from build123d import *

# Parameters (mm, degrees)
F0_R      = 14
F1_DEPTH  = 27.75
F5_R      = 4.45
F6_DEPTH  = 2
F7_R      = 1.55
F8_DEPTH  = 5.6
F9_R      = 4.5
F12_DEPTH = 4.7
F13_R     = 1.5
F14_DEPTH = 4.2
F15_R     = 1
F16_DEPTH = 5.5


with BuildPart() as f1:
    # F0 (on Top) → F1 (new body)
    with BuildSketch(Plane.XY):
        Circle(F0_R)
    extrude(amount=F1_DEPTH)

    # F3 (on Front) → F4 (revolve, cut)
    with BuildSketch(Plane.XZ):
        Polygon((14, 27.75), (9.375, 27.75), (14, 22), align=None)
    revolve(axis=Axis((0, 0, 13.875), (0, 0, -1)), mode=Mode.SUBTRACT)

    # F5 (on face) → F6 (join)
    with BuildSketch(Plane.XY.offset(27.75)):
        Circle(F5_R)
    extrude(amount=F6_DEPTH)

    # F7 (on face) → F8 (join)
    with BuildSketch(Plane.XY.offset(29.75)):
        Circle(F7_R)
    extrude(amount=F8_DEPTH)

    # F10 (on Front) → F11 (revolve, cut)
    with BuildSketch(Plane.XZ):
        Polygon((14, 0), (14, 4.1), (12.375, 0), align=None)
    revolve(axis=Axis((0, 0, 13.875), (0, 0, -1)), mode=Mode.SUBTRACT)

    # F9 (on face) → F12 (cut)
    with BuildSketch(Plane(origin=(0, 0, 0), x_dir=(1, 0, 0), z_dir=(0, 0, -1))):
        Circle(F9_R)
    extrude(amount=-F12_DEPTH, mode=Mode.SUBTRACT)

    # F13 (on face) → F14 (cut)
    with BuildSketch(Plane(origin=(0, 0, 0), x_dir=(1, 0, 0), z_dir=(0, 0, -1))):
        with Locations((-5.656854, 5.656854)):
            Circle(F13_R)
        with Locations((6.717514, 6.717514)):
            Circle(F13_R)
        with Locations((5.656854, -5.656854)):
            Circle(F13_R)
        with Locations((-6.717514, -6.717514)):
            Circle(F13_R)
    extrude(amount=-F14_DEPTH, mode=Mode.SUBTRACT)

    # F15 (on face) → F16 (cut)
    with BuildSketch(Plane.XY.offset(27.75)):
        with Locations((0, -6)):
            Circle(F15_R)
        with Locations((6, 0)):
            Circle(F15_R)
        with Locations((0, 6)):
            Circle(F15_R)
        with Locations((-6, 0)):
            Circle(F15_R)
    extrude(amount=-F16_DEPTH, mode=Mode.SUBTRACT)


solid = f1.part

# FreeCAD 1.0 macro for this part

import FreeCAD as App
import Part
import Sketcher
from FreeCAD import Vector


def add_polygon(sketch, points):
    """Adds a closed chain of lines whose ends are joined by coincident constraints."""
    first, n = sketch.GeometryCount, len(points)
    for a, b in zip(points, points[1:] + points[:1]):
        sketch.addGeometry(Part.LineSegment(App.Vector(*a, 0), App.Vector(*b, 0)), False)
    for i in range(n):
        sketch.addConstraint(Sketcher.Constraint("Coincident", first + i, 2, first + (i + 1) % n, 1))

doc = App.newDocument("Part")
body = doc.addObject("PartDesign::Body", "Body")

# Sketch on XY plane
sketch1 = body.newObject("Sketcher::SketchObject", "Sketch")
sketch1.AttachmentSupport = (doc.getObject("XY_Plane"), [""])
sketch1.MapMode = "FlatFace"
sketch1.addGeometry(Part.Circle(Vector(0, 0, 0), Vector(0, 0, 1), 14), False)
sketch1.addConstraint(Sketcher.Constraint("Coincident", 0, 3, -1, 1))
sketch1.addConstraint(Sketcher.Constraint("Diameter", 0, 28.0))
pad1 = body.newObject("PartDesign::Pad", "Pad")
pad1.Profile = sketch1
pad1.Length = 27.75

# Sketch on XZ plane
sketch2 = body.newObject("Sketcher::SketchObject", "Sketch001")
sketch2.AttachmentSupport = (doc.getObject("XZ_Plane"), [""])
sketch2.MapMode = "FlatFace"
add_polygon(sketch2, [(14, 27.8), (9.4, 27.8), (14, 22)])  # lines 0-2
sketch2.addConstraint(Sketcher.Constraint("Horizontal", 0))
sketch2.addConstraint(Sketcher.Constraint("Vertical", 2))
sketch2.addConstraint(Sketcher.Constraint("DistanceX", -1, 1, 1, 2, 14.0))
sketch2.addConstraint(Sketcher.Constraint("DistanceY", -1, 1, 1, 2, 22.0))
sketch2.addConstraint(Sketcher.Constraint("DistanceY", 2, 1, 2, 2, 5.75))
sketch2.addConstraint(Sketcher.Constraint("DistanceX", 0, 2, 0, 1, 4.625))
groove = body.newObject("PartDesign::Groove", "Groove")
groove.Profile = sketch2
groove.ReferenceAxis = (sketch2, ["V_Axis"])
groove.Angle = 360

# Sketch on XY plane
sketch3 = body.newObject("Sketcher::SketchObject", "Sketch002")
sketch3.AttachmentSupport = (doc.getObject("XY_Plane"), [""])
sketch3.MapMode = "FlatFace"
sketch3.AttachmentOffset = App.Placement(Vector(0, 0, 27.75), App.Rotation())
sketch3.addGeometry(Part.Circle(Vector(0, 0, 0), Vector(0, 0, 1), 4.5), False)
sketch3.addConstraint(Sketcher.Constraint("Coincident", 0, 3, -1, 1))
sketch3.addConstraint(Sketcher.Constraint("Diameter", 0, 8.9))
pad2 = body.newObject("PartDesign::Pad", "Pad001")
pad2.Profile = sketch3
pad2.Length = 2

# Sketch on XY plane
sketch4 = body.newObject("Sketcher::SketchObject", "Sketch003")
sketch4.AttachmentSupport = (doc.getObject("XY_Plane"), [""])
sketch4.MapMode = "FlatFace"
sketch4.AttachmentOffset = App.Placement(Vector(0, 0, 29.75), App.Rotation())
sketch4.addGeometry(Part.Circle(Vector(0, 0, 0), Vector(0, 0, 1), 1.6), False)
sketch4.addConstraint(Sketcher.Constraint("Coincident", 0, 3, -1, 1))
sketch4.addConstraint(Sketcher.Constraint("Diameter", 0, 3.1))
pad3 = body.newObject("PartDesign::Pad", "Pad002")
pad3.Profile = sketch4
pad3.Length = 5.6

# Sketch on XZ plane
sketch5 = body.newObject("Sketcher::SketchObject", "Sketch004")
sketch5.AttachmentSupport = (doc.getObject("XZ_Plane"), [""])
sketch5.MapMode = "FlatFace"
add_polygon(sketch5, [(14, 0), (14, 4.1), (12.4, 0)])  # lines 0-2
sketch5.addConstraint(Sketcher.Constraint("Vertical", 0))
sketch5.addConstraint(Sketcher.Constraint("Horizontal", 2))
sketch5.addConstraint(Sketcher.Constraint("PointOnObject", 1, 2, -1))
sketch5.addConstraint(Sketcher.Constraint("DistanceY", 0, 1, 0, 2, 4.1))
sketch5.addConstraint(Sketcher.Constraint("DistanceX", -1, 1, 0, 2, 14.0))
sketch5.addConstraint(Sketcher.Constraint("DistanceX", 2, 1, 2, 2, 1.625))
groove2 = body.newObject("PartDesign::Groove", "Groove001")
groove2.Profile = sketch5
groove2.ReferenceAxis = (sketch5, ["V_Axis"])
groove2.Angle = 360

# Sketch on XY plane
sketch6 = body.newObject("Sketcher::SketchObject", "Sketch005")
sketch6.AttachmentSupport = (doc.getObject("XY_Plane"), [""])
sketch6.MapMode = "FlatFace"
sketch6.addGeometry(Part.Circle(Vector(0, 0, 0), Vector(0, 0, 1), 4.5), False)
sketch6.addConstraint(Sketcher.Constraint("Coincident", 0, 3, -1, 1))
sketch6.addConstraint(Sketcher.Constraint("Diameter", 0, 9.0))
pocket1 = body.newObject("PartDesign::Pocket", "Pocket")
pocket1.Profile = sketch6
pocket1.Length = 4.7
pocket1.Reversed = True

# Sketch on XY plane
sketch7 = body.newObject("Sketcher::SketchObject", "Sketch006")
sketch7.AttachmentSupport = (doc.getObject("XY_Plane"), [""])
sketch7.MapMode = "FlatFace"
sketch7.addGeometry(Part.Circle(Vector(-5.7, -5.7, 0), Vector(0, 0, 1), 1.5), False)
sketch7.addGeometry(Part.Circle(Vector(6.7, -6.7, 0), Vector(0, 0, 1), 1.5), False)
sketch7.addGeometry(Part.Circle(Vector(5.7, 5.7, 0), Vector(0, 0, 1), 1.5), False)
sketch7.addGeometry(Part.Circle(Vector(-6.7, 6.7, 0), Vector(0, 0, 1), 1.5), False)
sketch7.addConstraint(Sketcher.Constraint("Equal", 0, 1))
sketch7.addConstraint(Sketcher.Constraint("Equal", 1, 2))
sketch7.addConstraint(Sketcher.Constraint("Equal", 2, 3))
sketch7.addConstraint(Sketcher.Constraint("Symmetric", 0, 3, 2, 3, -1, 1))
sketch7.addConstraint(Sketcher.Constraint("Symmetric", 1, 3, 3, 3, -1, 1))
sketch7.addConstraint(Sketcher.Constraint("Diameter", 0, 3.0))
sketch7.addConstraint(Sketcher.Constraint("DistanceY", 1, 3, 0, 3, 1.06066))
sketch7.addConstraint(Sketcher.Constraint("DistanceX", 2, 3, 1, 3, 1.06066))
sketch7.addConstraint(Sketcher.Constraint("DistanceX", 3, 3, 1, 3, 13.435028))
sketch7.addConstraint(Sketcher.Constraint("DistanceY", 1, 3, 3, 3, 13.435028))
pocket2 = body.newObject("PartDesign::Pocket", "Pocket001")
pocket2.Profile = sketch7
pocket2.Length = 4.2
pocket2.Reversed = True

# Sketch on XY plane
sketch8 = body.newObject("Sketcher::SketchObject", "Sketch007")
sketch8.AttachmentSupport = (doc.getObject("XY_Plane"), [""])
sketch8.MapMode = "FlatFace"
sketch8.AttachmentOffset = App.Placement(Vector(0, 0, 27.75), App.Rotation())
sketch8.addGeometry(Part.Circle(Vector(0, -6, 0), Vector(0, 0, 1), 1), False)
sketch8.addGeometry(Part.Circle(Vector(6, 0, 0), Vector(0, 0, 1), 1), False)
sketch8.addGeometry(Part.Circle(Vector(0, 6, 0), Vector(0, 0, 1), 1), False)
sketch8.addGeometry(Part.Circle(Vector(-6, 0, 0), Vector(0, 0, 1), 1), False)
sketch8.addConstraint(Sketcher.Constraint("Equal", 0, 1))
sketch8.addConstraint(Sketcher.Constraint("Equal", 1, 2))
sketch8.addConstraint(Sketcher.Constraint("Equal", 2, 3))
sketch8.addConstraint(Sketcher.Constraint("Symmetric", 0, 3, 2, 3, -1, 1))
sketch8.addConstraint(Sketcher.Constraint("Symmetric", 1, 3, 3, 3, -1, 1))
sketch8.addConstraint(Sketcher.Constraint("PointOnObject", 0, 3, -2))
sketch8.addConstraint(Sketcher.Constraint("PointOnObject", 1, 3, -1))
sketch8.addConstraint(Sketcher.Constraint("Diameter", 0, 2.0))
sketch8.addConstraint(Sketcher.Constraint("DistanceY", 0, 3, -1, 1, 6.0))
sketch8.addConstraint(Sketcher.Constraint("DistanceX", -1, 1, 1, 3, 6.0))
pocket3 = body.newObject("PartDesign::Pocket", "Pocket002")
pocket3.Profile = sketch8
pocket3.Length = 5.5

doc.recompute()
